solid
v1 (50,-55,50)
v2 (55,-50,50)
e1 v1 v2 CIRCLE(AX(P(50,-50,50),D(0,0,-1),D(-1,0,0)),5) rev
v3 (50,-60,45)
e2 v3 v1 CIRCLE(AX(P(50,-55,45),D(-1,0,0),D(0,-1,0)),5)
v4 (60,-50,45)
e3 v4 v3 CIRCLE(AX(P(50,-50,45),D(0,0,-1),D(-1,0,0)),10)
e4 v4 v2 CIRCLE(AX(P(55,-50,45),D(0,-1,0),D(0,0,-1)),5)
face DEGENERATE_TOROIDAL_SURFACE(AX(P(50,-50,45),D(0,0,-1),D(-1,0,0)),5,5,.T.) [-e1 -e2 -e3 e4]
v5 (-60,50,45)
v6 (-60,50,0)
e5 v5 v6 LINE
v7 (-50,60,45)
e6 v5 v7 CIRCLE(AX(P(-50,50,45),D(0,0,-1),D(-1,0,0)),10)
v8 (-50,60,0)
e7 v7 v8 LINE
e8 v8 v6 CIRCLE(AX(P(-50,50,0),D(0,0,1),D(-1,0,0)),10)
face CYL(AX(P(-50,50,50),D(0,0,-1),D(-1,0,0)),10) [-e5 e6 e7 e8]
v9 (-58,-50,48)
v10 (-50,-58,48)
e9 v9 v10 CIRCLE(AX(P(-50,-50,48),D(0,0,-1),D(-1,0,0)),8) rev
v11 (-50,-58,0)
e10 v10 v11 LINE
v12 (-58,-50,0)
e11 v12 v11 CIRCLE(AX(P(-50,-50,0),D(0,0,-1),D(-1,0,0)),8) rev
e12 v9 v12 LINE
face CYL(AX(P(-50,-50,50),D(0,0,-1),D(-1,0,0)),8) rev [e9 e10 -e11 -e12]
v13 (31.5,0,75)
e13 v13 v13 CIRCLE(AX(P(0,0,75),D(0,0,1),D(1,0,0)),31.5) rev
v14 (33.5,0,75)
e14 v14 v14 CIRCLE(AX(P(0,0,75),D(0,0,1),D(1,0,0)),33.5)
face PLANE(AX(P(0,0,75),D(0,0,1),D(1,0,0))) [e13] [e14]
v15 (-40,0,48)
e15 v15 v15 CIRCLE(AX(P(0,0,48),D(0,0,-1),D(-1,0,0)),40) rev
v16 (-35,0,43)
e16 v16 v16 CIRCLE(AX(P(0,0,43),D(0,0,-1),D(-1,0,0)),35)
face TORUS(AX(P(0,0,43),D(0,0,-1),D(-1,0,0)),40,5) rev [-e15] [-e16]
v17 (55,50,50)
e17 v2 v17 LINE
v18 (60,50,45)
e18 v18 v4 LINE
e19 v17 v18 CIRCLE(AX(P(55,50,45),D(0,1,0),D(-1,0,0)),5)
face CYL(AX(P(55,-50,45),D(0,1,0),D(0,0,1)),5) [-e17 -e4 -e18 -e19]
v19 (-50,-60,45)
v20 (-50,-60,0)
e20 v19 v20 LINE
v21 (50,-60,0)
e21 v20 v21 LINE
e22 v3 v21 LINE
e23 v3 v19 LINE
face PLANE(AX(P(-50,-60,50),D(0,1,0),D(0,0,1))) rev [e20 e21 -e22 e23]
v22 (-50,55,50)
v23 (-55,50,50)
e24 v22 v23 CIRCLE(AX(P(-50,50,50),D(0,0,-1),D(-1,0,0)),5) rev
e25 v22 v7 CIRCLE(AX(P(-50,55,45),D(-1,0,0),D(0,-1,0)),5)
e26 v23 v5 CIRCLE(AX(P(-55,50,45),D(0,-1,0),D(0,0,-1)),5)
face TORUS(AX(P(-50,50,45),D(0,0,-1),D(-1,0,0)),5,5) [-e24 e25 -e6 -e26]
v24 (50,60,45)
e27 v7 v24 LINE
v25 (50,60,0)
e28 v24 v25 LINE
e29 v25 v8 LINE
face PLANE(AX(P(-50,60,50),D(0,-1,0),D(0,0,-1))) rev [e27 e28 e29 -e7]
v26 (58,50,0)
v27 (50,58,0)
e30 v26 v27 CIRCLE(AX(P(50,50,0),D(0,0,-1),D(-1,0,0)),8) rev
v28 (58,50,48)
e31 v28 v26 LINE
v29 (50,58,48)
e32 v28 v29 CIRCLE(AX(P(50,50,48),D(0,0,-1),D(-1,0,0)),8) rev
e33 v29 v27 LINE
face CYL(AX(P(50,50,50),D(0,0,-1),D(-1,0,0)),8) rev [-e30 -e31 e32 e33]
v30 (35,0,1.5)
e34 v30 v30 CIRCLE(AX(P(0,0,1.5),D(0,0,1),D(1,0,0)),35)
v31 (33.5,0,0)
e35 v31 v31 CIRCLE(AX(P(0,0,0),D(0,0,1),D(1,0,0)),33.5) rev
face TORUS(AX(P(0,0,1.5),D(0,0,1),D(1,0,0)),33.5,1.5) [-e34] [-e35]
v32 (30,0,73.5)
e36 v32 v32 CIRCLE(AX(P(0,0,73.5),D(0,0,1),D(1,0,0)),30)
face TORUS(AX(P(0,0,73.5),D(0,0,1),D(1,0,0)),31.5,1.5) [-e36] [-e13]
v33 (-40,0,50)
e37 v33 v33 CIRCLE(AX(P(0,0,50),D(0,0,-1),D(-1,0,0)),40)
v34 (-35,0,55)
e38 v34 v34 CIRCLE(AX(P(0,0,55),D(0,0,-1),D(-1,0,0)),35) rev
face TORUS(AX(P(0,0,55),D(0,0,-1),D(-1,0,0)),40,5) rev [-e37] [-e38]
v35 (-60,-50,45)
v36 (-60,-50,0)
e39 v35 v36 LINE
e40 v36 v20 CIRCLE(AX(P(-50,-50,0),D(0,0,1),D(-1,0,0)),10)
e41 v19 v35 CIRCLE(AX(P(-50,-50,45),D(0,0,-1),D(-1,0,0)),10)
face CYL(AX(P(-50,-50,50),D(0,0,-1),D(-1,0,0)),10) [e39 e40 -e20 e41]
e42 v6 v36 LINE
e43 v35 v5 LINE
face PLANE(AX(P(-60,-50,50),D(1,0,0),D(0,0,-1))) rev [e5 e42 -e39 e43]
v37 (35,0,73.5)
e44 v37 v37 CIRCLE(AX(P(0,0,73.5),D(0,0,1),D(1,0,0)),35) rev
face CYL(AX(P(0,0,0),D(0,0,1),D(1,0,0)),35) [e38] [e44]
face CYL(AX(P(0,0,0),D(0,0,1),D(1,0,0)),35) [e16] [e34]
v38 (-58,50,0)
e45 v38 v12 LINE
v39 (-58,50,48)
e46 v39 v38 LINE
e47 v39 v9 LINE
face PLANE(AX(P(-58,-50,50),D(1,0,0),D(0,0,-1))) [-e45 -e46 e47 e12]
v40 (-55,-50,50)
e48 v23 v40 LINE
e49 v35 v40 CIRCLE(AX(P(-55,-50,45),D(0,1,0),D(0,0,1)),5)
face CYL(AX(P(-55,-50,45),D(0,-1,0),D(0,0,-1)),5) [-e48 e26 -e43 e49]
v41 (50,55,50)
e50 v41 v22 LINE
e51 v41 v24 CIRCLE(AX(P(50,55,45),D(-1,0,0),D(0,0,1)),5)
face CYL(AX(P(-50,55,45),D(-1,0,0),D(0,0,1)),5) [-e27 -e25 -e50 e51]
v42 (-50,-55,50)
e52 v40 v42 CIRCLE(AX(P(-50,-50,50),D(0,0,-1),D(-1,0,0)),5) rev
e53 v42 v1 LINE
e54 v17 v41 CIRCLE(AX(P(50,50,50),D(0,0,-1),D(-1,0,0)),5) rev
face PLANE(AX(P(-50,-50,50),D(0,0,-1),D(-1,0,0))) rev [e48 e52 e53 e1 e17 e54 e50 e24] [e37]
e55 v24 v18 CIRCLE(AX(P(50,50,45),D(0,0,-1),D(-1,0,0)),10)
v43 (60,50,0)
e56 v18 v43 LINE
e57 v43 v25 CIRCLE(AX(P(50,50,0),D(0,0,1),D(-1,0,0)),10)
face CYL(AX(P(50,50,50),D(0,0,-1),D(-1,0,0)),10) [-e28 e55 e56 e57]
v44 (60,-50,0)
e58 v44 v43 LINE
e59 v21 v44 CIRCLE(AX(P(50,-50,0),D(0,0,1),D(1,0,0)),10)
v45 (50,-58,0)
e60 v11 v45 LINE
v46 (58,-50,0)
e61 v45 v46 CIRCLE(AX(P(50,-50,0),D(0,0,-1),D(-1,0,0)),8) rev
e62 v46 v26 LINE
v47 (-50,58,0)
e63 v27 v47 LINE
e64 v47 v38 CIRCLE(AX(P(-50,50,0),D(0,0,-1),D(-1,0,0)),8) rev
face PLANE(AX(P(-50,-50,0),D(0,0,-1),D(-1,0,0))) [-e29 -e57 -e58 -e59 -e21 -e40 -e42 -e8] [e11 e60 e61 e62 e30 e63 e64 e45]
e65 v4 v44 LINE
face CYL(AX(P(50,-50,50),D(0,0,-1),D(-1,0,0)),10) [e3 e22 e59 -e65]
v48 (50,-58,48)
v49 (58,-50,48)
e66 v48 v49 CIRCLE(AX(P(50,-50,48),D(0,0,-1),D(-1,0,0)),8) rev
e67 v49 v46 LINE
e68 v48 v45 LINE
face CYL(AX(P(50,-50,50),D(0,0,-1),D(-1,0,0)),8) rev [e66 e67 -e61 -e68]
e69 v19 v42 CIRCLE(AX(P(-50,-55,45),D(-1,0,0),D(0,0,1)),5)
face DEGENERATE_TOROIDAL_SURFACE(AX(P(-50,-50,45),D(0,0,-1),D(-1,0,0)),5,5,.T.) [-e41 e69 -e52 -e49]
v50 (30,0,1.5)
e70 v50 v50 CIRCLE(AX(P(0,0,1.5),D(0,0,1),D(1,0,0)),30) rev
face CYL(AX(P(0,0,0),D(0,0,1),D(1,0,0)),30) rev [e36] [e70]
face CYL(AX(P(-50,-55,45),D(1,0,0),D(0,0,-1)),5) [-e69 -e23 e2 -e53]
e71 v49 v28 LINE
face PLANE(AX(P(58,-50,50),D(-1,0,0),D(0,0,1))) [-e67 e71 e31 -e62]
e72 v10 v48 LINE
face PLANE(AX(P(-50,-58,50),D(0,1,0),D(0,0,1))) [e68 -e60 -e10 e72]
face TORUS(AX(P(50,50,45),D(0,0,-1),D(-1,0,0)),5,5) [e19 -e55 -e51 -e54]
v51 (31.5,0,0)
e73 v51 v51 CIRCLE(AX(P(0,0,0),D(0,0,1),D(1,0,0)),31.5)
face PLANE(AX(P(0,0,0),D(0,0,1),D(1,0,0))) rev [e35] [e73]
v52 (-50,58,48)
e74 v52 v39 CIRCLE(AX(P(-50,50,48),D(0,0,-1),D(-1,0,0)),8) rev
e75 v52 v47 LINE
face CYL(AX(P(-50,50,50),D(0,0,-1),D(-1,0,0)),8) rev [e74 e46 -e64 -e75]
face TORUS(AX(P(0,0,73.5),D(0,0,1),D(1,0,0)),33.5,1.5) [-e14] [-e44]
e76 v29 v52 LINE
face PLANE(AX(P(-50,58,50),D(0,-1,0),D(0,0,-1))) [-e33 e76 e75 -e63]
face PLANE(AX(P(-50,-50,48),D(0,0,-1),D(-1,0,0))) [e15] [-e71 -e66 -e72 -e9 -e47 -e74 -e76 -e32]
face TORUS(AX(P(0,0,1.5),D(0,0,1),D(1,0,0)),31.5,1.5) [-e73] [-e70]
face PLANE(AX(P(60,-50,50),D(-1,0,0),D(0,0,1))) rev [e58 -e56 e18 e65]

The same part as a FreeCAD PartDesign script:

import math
import FreeCAD as App
import Part
import Sketcher

V = App.Vector


def edges_at(feature, points):
    """Names of the edges that pass closest to the given points."""
    edges = feature.Shape.Edges
    near = lambda p: min(range(len(edges)), key=lambda i: edges[i].distToShape(Part.Vertex(*p))[0])
    return sorted({f"Edge{near(p) + 1}" for p in points})


def faces_at(feature, points):
    """Names of the faces that lie closest to the given points."""
    faces = feature.Shape.Faces
    near = lambda p: min(range(len(faces)), key=lambda i: faces[i].distToShape(Part.Vertex(*p))[0])
    return sorted({f"Face{near(p) + 1}" for p in points})

doc = App.newDocument("Part")
body = doc.addObject("PartDesign::Body", "Body")

# Sketch on XY plane
sketch1 = body.newObject("Sketcher::SketchObject", "Sketch")
sketch1.AttachmentSupport = (doc.getObject("XY_Plane"), [""])
sketch1.MapMode = "FlatFace"
sketch1.addGeometry([
    Part.LineSegment(V(-50, -60, 0), V(50, -60, 0)),  # 0
    Part.ArcOfCircle(Part.Circle(V(50, -50, 0), V(0, 0, 1), 10), math.radians(-90), math.radians(0)),  # 1
    Part.LineSegment(V(60, -50, 0), V(60, 50, 0)),  # 2
    Part.ArcOfCircle(Part.Circle(V(50, 50, 0), V(0, 0, 1), 10), math.radians(0), math.radians(90)),  # 3
    Part.LineSegment(V(50, 60, 0), V(-50, 60, 0)),  # 4
    Part.ArcOfCircle(Part.Circle(V(-50, 50, 0), V(0, 0, 1), 10), math.radians(90), math.radians(180)),  # 5
    Part.LineSegment(V(-60, 50, 0), V(-60, -50, 0)),  # 6
    Part.ArcOfCircle(Part.Circle(V(-50, -50, 0), V(0, 0, 1), 10), math.radians(180), math.radians(270)),  # 7
], False)
sketch1.addConstraint([
    Sketcher.Constraint("Tangent", 0, 2, 1, 1),
    Sketcher.Constraint("Tangent", 1, 2, 2, 1),
    Sketcher.Constraint("Tangent", 2, 2, 3, 1),
    Sketcher.Constraint("Tangent", 3, 2, 4, 1),
    Sketcher.Constraint("Tangent", 4, 2, 5, 1),
    Sketcher.Constraint("Tangent", 5, 2, 6, 1),
    Sketcher.Constraint("Tangent", 6, 2, 7, 1),
    Sketcher.Constraint("Tangent", 7, 2, 0, 1),
    Sketcher.Constraint("Horizontal", 0),
    Sketcher.Constraint("Vertical", 2),
    Sketcher.Constraint("Horizontal", 4),
    Sketcher.Constraint("Vertical", 6),
    Sketcher.Constraint("Equal", 1, 3),
    Sketcher.Constraint("Equal", 3, 5),
    Sketcher.Constraint("Equal", 5, 7),
    Sketcher.Constraint("Symmetric", 1, 3, 5, 3, -1, 1),
    Sketcher.Constraint("Equal", 4, 2),
    Sketcher.Constraint("Radius", 1, 10.0),
    Sketcher.Constraint("DistanceX", 0, 1, 0, 2, 100.0),
])
pad1 = body.newObject("PartDesign::Pad", "Pad")
pad1.Profile = sketch1
pad1.Length = 50
doc.recompute()

thickness = body.newObject("PartDesign::Thickness", "Thickness")
thickness.Base = (pad1, faces_at(pad1, [(0, 0, 0)]))
thickness.Value = 2
thickness.Reversed = True
thickness.Join = "Intersection"

# Sketch on XY plane
sketch2 = body.newObject("Sketcher::SketchObject", "Sketch001")
sketch2.AttachmentSupport = (doc.getObject("XY_Plane"), [""])
sketch2.MapMode = "FlatFace"
sketch2.AttachmentOffset = App.Placement(V(0, 0, 50), App.Rotation())
sketch2.addGeometry([
    Part.Circle(V(0, 0, 0), V(0, 0, 1), 35),
    Part.Circle(V(0, 0, 0), V(0, 0, 1), 30),
], False)
sketch2.addConstraint([
    Sketcher.Constraint("Coincident", 0, 3, -1, 1),
    Sketcher.Constraint("Coincident", 1, 3, -1, 1),
    Sketcher.Constraint("Diameter", 0, 70.0),
    Sketcher.Constraint("Diameter", 1, 60.0),
])
pad2 = body.newObject("PartDesign::Pad", "Pad001")
pad2.Profile = sketch2
pad2.Type = "TwoLengths"
pad2.Length = 25
pad2.Length2 = 50

# Sketch on XY plane
sketch3 = body.newObject("Sketcher::SketchObject", "Sketch002")
sketch3.AttachmentSupport = (doc.getObject("XY_Plane"), [""])
sketch3.MapMode = "FlatFace"
sketch3.AttachmentOffset = App.Placement(V(0, 0, 75), App.Rotation())
sketch3.addGeometry(Part.Circle(V(0, 0, 0), V(0, 0, 1), 30), False)
sketch3.addConstraint([
    Sketcher.Constraint("Coincident", 0, 3, -1, 1),
    Sketcher.Constraint("Diameter", 0, 60.0),
])
pocket1 = body.newObject("PartDesign::Pocket", "Pocket")
pocket1.Profile = sketch3
pocket1.Type = "ThroughAll"
doc.recompute()

fillet = body.newObject("PartDesign::Fillet", "Fillet")
fillet.Base = (pocket1, edges_at(pocket1, [
    (-30, 0, 75),
    (-35, 0, 0),
    (-30, 0, 0),
    (-35, 0, 75),
]))
fillet.Radius = 1.5
doc.recompute()

fillet2 = body.newObject("PartDesign::Fillet", "Fillet001")
fillet2.Base = (fillet, edges_at(fillet, [(-35, 0, 48), (-35, 0, 50)]))
fillet2.Radius = 5
doc.recompute()

fillet3 = body.newObject("PartDesign::Fillet", "Fillet002")
fillet3.Base = (fillet2, edges_at(fillet2, [
    (57.071, -57.071, 50),
    (60, 0, 50),
    (57.071, 57.071, 50),
    (0, 60, 50),
    (-57.071, 57.071, 50),
    (-60, 0, 50),
    (-57.071, -57.071, 50),
    (0, -60, 50),
]))
fillet3.Radius = 5

doc.recompute()
